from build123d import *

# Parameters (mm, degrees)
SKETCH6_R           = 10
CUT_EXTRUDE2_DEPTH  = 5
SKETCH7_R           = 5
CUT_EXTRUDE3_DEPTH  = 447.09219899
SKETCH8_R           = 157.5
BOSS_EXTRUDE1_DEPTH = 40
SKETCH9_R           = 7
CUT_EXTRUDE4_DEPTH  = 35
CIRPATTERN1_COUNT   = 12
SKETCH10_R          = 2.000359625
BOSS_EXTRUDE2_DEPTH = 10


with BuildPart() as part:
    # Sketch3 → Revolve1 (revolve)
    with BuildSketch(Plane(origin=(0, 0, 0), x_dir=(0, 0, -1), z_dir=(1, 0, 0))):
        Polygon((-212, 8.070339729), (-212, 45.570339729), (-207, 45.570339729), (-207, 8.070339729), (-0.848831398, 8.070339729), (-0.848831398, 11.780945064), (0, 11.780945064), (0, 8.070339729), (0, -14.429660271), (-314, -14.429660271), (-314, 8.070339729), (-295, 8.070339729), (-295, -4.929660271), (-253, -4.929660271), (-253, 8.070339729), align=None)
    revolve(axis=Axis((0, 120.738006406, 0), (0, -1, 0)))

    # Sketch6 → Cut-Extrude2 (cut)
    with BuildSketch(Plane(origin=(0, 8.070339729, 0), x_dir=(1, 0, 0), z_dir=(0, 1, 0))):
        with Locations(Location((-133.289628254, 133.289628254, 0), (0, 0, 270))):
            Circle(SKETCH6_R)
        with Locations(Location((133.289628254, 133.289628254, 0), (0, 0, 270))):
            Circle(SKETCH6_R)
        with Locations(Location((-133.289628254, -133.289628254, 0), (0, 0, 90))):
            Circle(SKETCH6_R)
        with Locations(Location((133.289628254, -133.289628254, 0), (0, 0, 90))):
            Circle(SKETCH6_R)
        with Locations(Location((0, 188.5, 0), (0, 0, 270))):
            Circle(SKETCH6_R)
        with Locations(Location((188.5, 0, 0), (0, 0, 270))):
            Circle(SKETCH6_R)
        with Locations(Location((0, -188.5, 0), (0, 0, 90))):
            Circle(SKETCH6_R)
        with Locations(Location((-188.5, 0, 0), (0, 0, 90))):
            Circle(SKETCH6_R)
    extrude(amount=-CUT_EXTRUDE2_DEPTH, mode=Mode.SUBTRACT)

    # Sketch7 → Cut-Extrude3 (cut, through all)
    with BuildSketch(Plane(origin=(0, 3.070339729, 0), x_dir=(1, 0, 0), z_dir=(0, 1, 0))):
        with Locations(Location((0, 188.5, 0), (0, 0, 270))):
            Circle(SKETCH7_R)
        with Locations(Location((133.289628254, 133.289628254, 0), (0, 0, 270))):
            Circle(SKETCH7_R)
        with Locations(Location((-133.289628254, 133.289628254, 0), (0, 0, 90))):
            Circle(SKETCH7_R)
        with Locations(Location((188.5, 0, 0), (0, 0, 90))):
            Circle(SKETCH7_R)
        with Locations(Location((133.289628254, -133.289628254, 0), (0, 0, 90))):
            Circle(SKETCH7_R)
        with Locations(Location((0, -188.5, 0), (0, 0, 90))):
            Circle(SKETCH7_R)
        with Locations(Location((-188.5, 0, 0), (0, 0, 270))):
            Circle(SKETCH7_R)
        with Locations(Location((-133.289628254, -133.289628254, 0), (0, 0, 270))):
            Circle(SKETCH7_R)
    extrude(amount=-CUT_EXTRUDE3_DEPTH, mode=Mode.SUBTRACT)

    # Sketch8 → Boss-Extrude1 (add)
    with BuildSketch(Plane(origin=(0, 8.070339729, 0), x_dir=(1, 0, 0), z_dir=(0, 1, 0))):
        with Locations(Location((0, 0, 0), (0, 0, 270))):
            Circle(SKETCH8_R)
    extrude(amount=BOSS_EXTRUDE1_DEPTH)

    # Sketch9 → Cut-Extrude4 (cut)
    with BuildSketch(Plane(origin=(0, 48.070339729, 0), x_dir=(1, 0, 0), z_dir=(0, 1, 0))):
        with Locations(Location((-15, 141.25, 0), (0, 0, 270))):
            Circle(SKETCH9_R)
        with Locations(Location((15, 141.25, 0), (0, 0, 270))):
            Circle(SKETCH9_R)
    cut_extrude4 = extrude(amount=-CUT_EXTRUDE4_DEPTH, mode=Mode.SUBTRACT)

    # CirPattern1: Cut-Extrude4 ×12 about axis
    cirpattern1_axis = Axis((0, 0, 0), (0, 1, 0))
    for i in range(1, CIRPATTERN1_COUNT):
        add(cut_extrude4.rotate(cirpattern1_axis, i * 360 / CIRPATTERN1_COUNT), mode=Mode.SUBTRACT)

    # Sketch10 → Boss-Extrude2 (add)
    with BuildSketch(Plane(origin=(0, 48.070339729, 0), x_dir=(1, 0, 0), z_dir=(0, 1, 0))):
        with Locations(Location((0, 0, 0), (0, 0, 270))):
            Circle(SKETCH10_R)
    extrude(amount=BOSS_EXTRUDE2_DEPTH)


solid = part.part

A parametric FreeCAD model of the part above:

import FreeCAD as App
import Part
import Sketcher

doc = App.newDocument("Part")
params = doc.addObject("Spreadsheet::Sheet", "Params")
for row, (alias, value) in enumerate([
    ("sketch1_width", "13 mm"),
    ("sketch1_height", "41 mm"),
    ("sketch1_height2", "42 mm"),
    ("sketch1_height3", "19 mm"),
    ("sketch1_height4", "314 mm"),
    ("revolution_angle", "360 deg"),
    ("sketch2_diameter", "20 mm"),
    ("pocket1_length", "5 mm"),
    ("sketch3_diameter", "10 mm"),
    ("sketch4_diameter", "315 mm"),
    ("pad1_length", "40 mm"),
    ("sketch5_diameter", "14 mm"),
    ("pocket3_length", "35 mm"),
    ("pad2_length", "10 mm"),
], start=1):
    params.set(f"A{row}", alias)
    params.set(f"B{row}", "=" + value)
    params.setAlias(f"B{row}", alias)

body = doc.addObject("PartDesign::Body", "Body")

# Sketch on YZ plane
sketch1 = doc.addObject("Sketcher::SketchObject", "Sketch")
body.addObject(sketch1)
sketch1.AttachmentSupport = (doc.YZ_Plane, [""])
sketch1.MapMode = "FlatFace"
sketch1.addGeometry(Part.LineSegment(App.Vector(45.6, 212, 0), App.Vector(8.1, 212, 0)), False)
sketch1.addGeometry(Part.LineSegment(App.Vector(8.1, 212, 0), App.Vector(8.1, 253, 0)), False)
sketch1.addGeometry(Part.LineSegment(App.Vector(8.1, 253, 0), App.Vector(-4.9, 253, 0)), False)
sketch1.addGeometry(Part.LineSegment(App.Vector(-4.9, 253, 0), App.Vector(-4.9, 295, 0)), False)
sketch1.addGeometry(Part.LineSegment(App.Vector(-4.9, 295, 0), App.Vector(8.1, 295, 0)), False)
sketch1.addGeometry(Part.LineSegment(App.Vector(8.1, 295, 0), App.Vector(8.1, 314, 0)), False)
sketch1.addGeometry(Part.LineSegment(App.Vector(8.1, 314, 0), App.Vector(-14.4, 314, 0)), False)
sketch1.addGeometry(Part.LineSegment(App.Vector(-14.4, 314, 0), App.Vector(-14.4, 0, 0)), False)
sketch1.addGeometry(Part.LineSegment(App.Vector(-14.4, 0, 0), App.Vector(11.8, 0, 0)), False)
sketch1.addGeometry(Part.LineSegment(App.Vector(11.8, 0, 0), App.Vector(11.8, 0.8, 0)), False)
sketch1.addGeometry(Part.LineSegment(App.Vector(11.8, 0.8, 0), App.Vector(8.1, 0.8, 0)), False)
sketch1.addGeometry(Part.LineSegment(App.Vector(8.1, 0.8, 0), App.Vector(8.1, 207, 0)), False)
sketch1.addGeometry(Part.LineSegment(App.Vector(8.1, 207, 0), App.Vector(45.6, 207, 0)), False)
sketch1.addGeometry(Part.LineSegment(App.Vector(45.6, 207, 0), App.Vector(45.6, 212, 0)), False)
sketch1.addConstraint(Sketcher.Constraint("Coincident", 0, 2, 1, 1))
sketch1.addConstraint(Sketcher.Constraint("Coincident", 1, 2, 2, 1))
sketch1.addConstraint(Sketcher.Constraint("Coincident", 2, 2, 3, 1))
sketch1.addConstraint(Sketcher.Constraint("Coincident", 3, 2, 4, 1))
sketch1.addConstraint(Sketcher.Constraint("Coincident", 4, 2, 5, 1))
sketch1.addConstraint(Sketcher.Constraint("Coincident", 5, 2, 6, 1))
sketch1.addConstraint(Sketcher.Constraint("Coincident", 6, 2, 7, 1))
sketch1.addConstraint(Sketcher.Constraint("Coincident", 7, 2, 8, 1))
sketch1.addConstraint(Sketcher.Constraint("Coincident", 8, 2, 9, 1))
sketch1.addConstraint(Sketcher.Constraint("Coincident", 9, 2, 10, 1))
sketch1.addConstraint(Sketcher.Constraint("Coincident", 10, 2, 11, 1))
sketch1.addConstraint(Sketcher.Constraint("Coincident", 11, 2, 12, 1))
sketch1.addConstraint(Sketcher.Constraint("Coincident", 12, 2, 13, 1))
sketch1.addConstraint(Sketcher.Constraint("Coincident", 13, 2, 0, 1))
sketch1.addConstraint(Sketcher.Constraint("Horizontal", 0))
sketch1.addConstraint(Sketcher.Constraint("Vertical", 1))
sketch1.addConstraint(Sketcher.Constraint("Horizontal", 2))
sketch1.addConstraint(Sketcher.Constraint("Vertical", 3))
sketch1.addConstraint(Sketcher.Constraint("Horizontal", 4))
sketch1.addConstraint(Sketcher.Constraint("Vertical", 5))
sketch1.addConstraint(Sketcher.Constraint("Horizontal", 6))
sketch1.addConstraint(Sketcher.Constraint("Vertical", 7))
sketch1.addConstraint(Sketcher.Constraint("Horizontal", 8))
sketch1.addConstraint(Sketcher.Constraint("Vertical", 9))
sketch1.addConstraint(Sketcher.Constraint("Horizontal", 10))
sketch1.addConstraint(Sketcher.Constraint("Vertical", 11))
sketch1.addConstraint(Sketcher.Constraint("Horizontal", 12))
sketch1.addConstraint(Sketcher.Constraint("Vertical", 13))
sketch1.addConstraint(Sketcher.Constraint("PointOnObject", 7, 2, -1))
sketch1.addConstraint(Sketcher.Constraint("Vertical", 1, 2, 4, 2))
sketch1.addConstraint(Sketcher.Constraint("Vertical", 5, 2, 10, 2))
sketch1.addConstraint(Sketcher.Constraint("DistanceX", 2, 2, 2, 1, 13.0))
sketch1.addConstraint(Sketcher.Constraint("DistanceY", 1, 1, 1, 2, 41.0))
sketch1.addConstraint(Sketcher.Constraint("DistanceY", 3, 1, 3, 2, 42.0))
sketch1.addConstraint(Sketcher.Constraint("DistanceY", 5, 1, 5, 2, 19.0))
sketch1.addConstraint(Sketcher.Constraint("DistanceY", 7, 2, 7, 1, 314.0))
sketch1.addConstraint(Sketcher.Constraint("DistanceY", 13, 1, 13, 2, 5.0))
sketch1.addConstraint(Sketcher.Constraint("DistanceX", 0, 2, 0, 1, 37.5))
sketch1.addConstraint(Sketcher.Constraint("DistanceX", 6, 2, 6, 1, 22.5))
sketch1.addConstraint(Sketcher.Constraint("DistanceY", 9, 1, 9, 2, 0.848831))
sketch1.addConstraint(Sketcher.Constraint("DistanceX", 8, 1, 8, 2, 26.210605))
sketch1.addConstraint(Sketcher.Constraint("DistanceX", -1, 1, 0, 2, 8.07034))
sketch1.setExpression("Constraints[31]", "Params.sketch1_width")
sketch1.setExpression("Constraints[32]", "Params.sketch1_height")
sketch1.setExpression("Constraints[33]", "Params.sketch1_height2")
sketch1.setExpression("Constraints[34]", "Params.sketch1_height3")
sketch1.setExpression("Constraints[35]", "Params.sketch1_height4")
revolution = doc.addObject("PartDesign::Revolution", "Revolution")
body.addObject(revolution)
revolution.Profile = sketch1
revolution.ReferenceAxis = (sketch1, ["H_Axis"])
revolution.setExpression("Angle", "Params.revolution_angle")

# Sketch on XZ plane
sketch2 = doc.addObject("Sketcher::SketchObject", "Sketch001")
body.addObject(sketch2)
sketch2.AttachmentSupport = (doc.XZ_Plane, [""])
sketch2.MapMode = "FlatFace"
sketch2.AttachmentOffset = App.Placement(App.Vector(0, 0, -8.07034), App.Rotation())
sketch2.addGeometry(Part.Circle(App.Vector(-133, -133, 0), App.Vector(0, 0, 1), 10), False)
sketch2.addGeometry(Part.Circle(App.Vector(133, -133, 0), App.Vector(0, 0, 1), 10), False)
sketch2.addGeometry(Part.Circle(App.Vector(-133, 133, 0), App.Vector(0, 0, 1), 10), False)
sketch2.addGeometry(Part.Circle(App.Vector(133, 133, 0), App.Vector(0, 0, 1), 10), False)
sketch2.addGeometry(Part.Circle(App.Vector(0, -188, 0), App.Vector(0, 0, 1), 10), False)
sketch2.addGeometry(Part.Circle(App.Vector(188, 0, 0), App.Vector(0, 0, 1), 10), False)
sketch2.addGeometry(Part.Circle(App.Vector(0, 188, 0), App.Vector(0, 0, 1), 10), False)
sketch2.addGeometry(Part.Circle(App.Vector(-188, 0, 0), App.Vector(0, 0, 1), 10), False)
sketch2.addConstraint(Sketcher.Constraint("Equal", 0, 1))
sketch2.addConstraint(Sketcher.Constraint("Equal", 1, 2))
sketch2.addConstraint(Sketcher.Constraint("Equal", 2, 3))
sketch2.addConstraint(Sketcher.Constraint("Equal", 3, 4))
sketch2.addConstraint(Sketcher.Constraint("Equal", 4, 5))
sketch2.addConstraint(Sketcher.Constraint("Equal", 5, 6))
sketch2.addConstraint(Sketcher.Constraint("Equal", 6, 7))
sketch2.addConstraint(Sketcher.Constraint("Symmetric", 1, 3, 2, 3, -1, 1))
sketch2.addConstraint(Sketcher.Constraint("Symmetric", 0, 3, 3, 3, -1, 1))
sketch2.addConstraint(Sketcher.Constraint("Symmetric", 4, 3, 6, 3, -1, 1))
sketch2.addConstraint(Sketcher.Constraint("Symmetric", 5, 3, 7, 3, -1, 1))
sketch2.addConstraint(Sketcher.Constraint("Symmetric", 0, 3, 1, 3, -2))
sketch2.addConstraint(Sketcher.Constraint("PointOnObject", 4, 3, -2))
sketch2.addConstraint(Sketcher.Constraint("PointOnObject", 5, 3, -1))
sketch2.addConstraint(Sketcher.Constraint("Diameter", 0, 20.0))
sketch2.addConstraint(Sketcher.Constraint("DistanceY", 4, 3, -1, 1, 188.5))
sketch2.addConstraint(Sketcher.Constraint("DistanceX", -1, 1, 5, 3, 188.5))
sketch2.addConstraint(Sketcher.Constraint("DistanceX", 0, 3, -1, 1, 133.289628))
sketch2.addConstraint(Sketcher.Constraint("DistanceY", 0, 3, -1, 1, 133.289628))
sketch2.setExpression("Constraints[14]", "Params.sketch2_diameter")
pocket1 = doc.addObject("PartDesign::Pocket", "Pocket")
body.addObject(pocket1)
pocket1.Profile = sketch2
pocket1.setExpression("Length", "Params.pocket1_length")
pocket1.Reversed = True

# Sketch on XZ plane
sketch3 = doc.addObject("Sketcher::SketchObject", "Sketch002")
body.addObject(sketch3)
sketch3.AttachmentSupport = (doc.XZ_Plane, [""])
sketch3.MapMode = "FlatFace"
sketch3.AttachmentOffset = App.Placement(App.Vector(0, 0, -3.07034), App.Rotation())
sketch3.addGeometry(Part.Circle(App.Vector(0, -188, 0), App.Vector(0, 0, 1), 5), False)
sketch3.addGeometry(Part.Circle(App.Vector(133, -133, 0), App.Vector(0, 0, 1), 5), False)
sketch3.addGeometry(Part.Circle(App.Vector(-133, -133, 0), App.Vector(0, 0, 1), 5), False)
sketch3.addGeometry(Part.Circle(App.Vector(188, 0, 0), App.Vector(0, 0, 1), 5), False)
sketch3.addGeometry(Part.Circle(App.Vector(133, 133, 0), App.Vector(0, 0, 1), 5), False)
sketch3.addGeometry(Part.Circle(App.Vector(0, 188, 0), App.Vector(0, 0, 1), 5), False)
sketch3.addGeometry(Part.Circle(App.Vector(-188, 0, 0), App.Vector(0, 0, 1), 5), False)
sketch3.addGeometry(Part.Circle(App.Vector(-133, 133, 0), App.Vector(0, 0, 1), 5), False)
sketch3.addConstraint(Sketcher.Constraint("Equal", 0, 1))
sketch3.addConstraint(Sketcher.Constraint("Equal", 1, 2))
sketch3.addConstraint(Sketcher.Constraint("Equal", 2, 3))
sketch3.addConstraint(Sketcher.Constraint("Equal", 3, 4))
sketch3.addConstraint(Sketcher.Constraint("Equal", 4, 5))
sketch3.addConstraint(Sketcher.Constraint("Equal", 5, 6))
sketch3.addConstraint(Sketcher.Constraint("Equal", 6, 7))
sketch3.addConstraint(Sketcher.Constraint("Symmetric", 2, 3, 4, 3, -1, 1))
sketch3.addConstraint(Sketcher.Constraint("Symmetric", 0, 3, 5, 3, -1, 1))
sketch3.addConstraint(Sketcher.Constraint("Symmetric", 3, 3, 6, 3, -1, 1))
sketch3.addConstraint(Sketcher.Constraint("Symmetric", 1, 3, 7, 3, -1, 1))
sketch3.addConstraint(Sketcher.Constraint("Symmetric", 1, 3, 2, 3, -2))
sketch3.addConstraint(Sketcher.Constraint("PointOnObject", 0, 3, -2))
sketch3.addConstraint(Sketcher.Constraint("PointOnObject", 3, 3, -1))
sketch3.addConstraint(Sketcher.Constraint("Diameter", 0, 10.0))
sketch3.addConstraint(Sketcher.Constraint("DistanceY", 0, 3, 5, 3, 377.0))
sketch3.addConstraint(Sketcher.Constraint("DistanceX", -1, 1, 3, 3, 188.5))
sketch3.addConstraint(Sketcher.Constraint("DistanceX", -1, 1, 1, 3, 133.289628))
sketch3.addConstraint(Sketcher.Constraint("DistanceY", 1, 3, -1, 1, 133.289628))
sketch3.setExpression("Constraints[14]", "Params.sketch3_diameter")
pocket2 = doc.addObject("PartDesign::Pocket", "Pocket001")
body.addObject(pocket2)
pocket2.Profile = sketch3
pocket2.Type = "ThroughAll"
pocket2.Reversed = True

# Sketch on XZ plane
sketch4 = doc.addObject("Sketcher::SketchObject", "Sketch003")
body.addObject(sketch4)
sketch4.AttachmentSupport = (doc.XZ_Plane, [""])
sketch4.MapMode = "FlatFace"
sketch4.AttachmentOffset = App.Placement(App.Vector(0, 0, -8.07034), App.Rotation())
sketch4.addGeometry(Part.Circle(App.Vector(0, 0, 0), App.Vector(0, 0, 1), 158), False)
sketch4.addConstraint(Sketcher.Constraint("Coincident", 0, 3, -1, 1))
sketch4.addConstraint(Sketcher.Constraint("Diameter", 0, 315.0))
sketch4.setExpression("Constraints[1]", "Params.sketch4_diameter")
pad1 = doc.addObject("PartDesign::Pad", "Pad")
body.addObject(pad1)
pad1.Profile = sketch4
pad1.setExpression("Length", "Params.pad1_length")
pad1.Reversed = True

# Sketch on XZ plane
sketch5 = doc.addObject("Sketcher::SketchObject", "Sketch004")
body.addObject(sketch5)
sketch5.AttachmentSupport = (doc.XZ_Plane, [""])
sketch5.MapMode = "FlatFace"
sketch5.AttachmentOffset = App.Placement(App.Vector(0, 0, -48.07034), App.Rotation())
sketch5.addGeometry(Part.Circle(App.Vector(-15, -141, 0), App.Vector(0, 0, 1), 7), False)
sketch5.addGeometry(Part.Circle(App.Vector(15, -141, 0), App.Vector(0, 0, 1), 7), False)
sketch5.addConstraint(Sketcher.Constraint("Equal", 0, 1))
sketch5.addConstraint(Sketcher.Constraint("Symmetric", 0, 3, 1, 3, -2))
sketch5.addConstraint(Sketcher.Constraint("Diameter", 0, 14.0))
sketch5.addConstraint(Sketcher.Constraint("DistanceX", 0, 3, -1, 1, 15.0))
sketch5.addConstraint(Sketcher.Constraint("DistanceY", 0, 3, -1, 1, 141.25))
sketch5.setExpression("Constraints[2]", "Params.sketch5_diameter")
pocket3 = doc.addObject("PartDesign::Pocket", "Pocket002")
body.addObject(pocket3)
pocket3.Profile = sketch5
pocket3.setExpression("Length", "Params.pocket3_length")
pocket3.Reversed = True
doc.recompute()

polarpattern = doc.addObject("PartDesign::PolarPattern", "PolarPattern")
body.addObject(polarpattern)
polarpattern.Originals = [pocket3]
polarpattern.Axis = (doc.Y_Axis, [""])
polarpattern.Angle = 360
polarpattern.Occurrences = 12
body.Tip = polarpattern

# Sketch on XZ plane
sketch6 = doc.addObject("Sketcher::SketchObject", "Sketch005")
body.addObject(sketch6)
sketch6.AttachmentSupport = (doc.XZ_Plane, [""])
sketch6.MapMode = "FlatFace"
sketch6.AttachmentOffset = App.Placement(App.Vector(0, 0, -48.07034), App.Rotation())
sketch6.addGeometry(Part.Circle(App.Vector(0, 0, 0), App.Vector(0, 0, 1), 2), False)
sketch6.addConstraint(Sketcher.Constraint("Coincident", 0, 3, -1, 1))
sketch6.addConstraint(Sketcher.Constraint("Diameter", 0, 4.000719))
pad2 = doc.addObject("PartDesign::Pad", "Pad001")
body.addObject(pad2)
pad2.Profile = sketch6
pad2.setExpression("Length", "Params.pad2_length")
pad2.Reversed = True

doc.recompute()
